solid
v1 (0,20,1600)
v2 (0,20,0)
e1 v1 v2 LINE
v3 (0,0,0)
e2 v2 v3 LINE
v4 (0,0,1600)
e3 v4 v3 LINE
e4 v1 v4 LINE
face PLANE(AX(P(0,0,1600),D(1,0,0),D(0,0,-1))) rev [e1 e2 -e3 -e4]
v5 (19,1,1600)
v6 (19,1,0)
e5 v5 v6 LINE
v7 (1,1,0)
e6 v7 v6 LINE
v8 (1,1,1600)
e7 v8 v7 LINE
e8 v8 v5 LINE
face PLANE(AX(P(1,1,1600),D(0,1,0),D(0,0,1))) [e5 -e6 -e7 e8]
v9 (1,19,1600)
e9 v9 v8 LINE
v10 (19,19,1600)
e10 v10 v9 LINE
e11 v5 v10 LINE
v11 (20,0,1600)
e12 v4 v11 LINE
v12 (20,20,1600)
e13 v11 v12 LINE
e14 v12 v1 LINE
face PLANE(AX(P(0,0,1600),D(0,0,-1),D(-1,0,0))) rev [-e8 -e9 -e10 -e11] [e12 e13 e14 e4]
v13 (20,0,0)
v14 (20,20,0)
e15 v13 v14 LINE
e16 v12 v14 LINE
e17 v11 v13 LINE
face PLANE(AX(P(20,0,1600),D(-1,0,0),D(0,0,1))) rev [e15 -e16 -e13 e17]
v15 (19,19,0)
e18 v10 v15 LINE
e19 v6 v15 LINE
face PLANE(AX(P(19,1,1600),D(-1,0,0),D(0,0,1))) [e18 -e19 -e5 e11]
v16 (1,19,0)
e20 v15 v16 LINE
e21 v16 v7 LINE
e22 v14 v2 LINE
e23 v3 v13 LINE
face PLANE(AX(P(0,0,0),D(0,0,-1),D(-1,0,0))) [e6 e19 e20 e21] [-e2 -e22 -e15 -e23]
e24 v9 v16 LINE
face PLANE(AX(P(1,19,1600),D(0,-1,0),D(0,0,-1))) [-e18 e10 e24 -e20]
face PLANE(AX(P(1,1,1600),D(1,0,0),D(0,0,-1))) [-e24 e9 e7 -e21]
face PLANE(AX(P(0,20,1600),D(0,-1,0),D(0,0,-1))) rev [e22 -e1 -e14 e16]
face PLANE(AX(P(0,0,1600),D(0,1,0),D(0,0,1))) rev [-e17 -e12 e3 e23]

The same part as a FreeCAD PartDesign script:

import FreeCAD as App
import Part
import Sketcher
from FreeCAD import Vector
Q = App.Units.Quantity


def add_polygon(sketch, points):
    """Adds a closed chain of lines whose ends are joined by coincident constraints."""
    first, n = sketch.GeometryCount, len(points)
    for a, b in zip(points, points[1:] + points[:1]):
        sketch.addGeometry(Part.LineSegment(App.Vector(*a, 0), App.Vector(*b, 0)), False)
    for i in range(n):
        sketch.addConstraint(Sketcher.Constraint("Coincident", first + i, 2, first + (i + 1) % n, 1))

doc = App.newDocument("Part")
body = doc.addObject("PartDesign::Body", "Body")

sketch1 = body.newObject("Sketcher::SketchObject", "Sketch")
sketch1.AttachmentSupport = (doc.getObject("XY_Plane"), [""])
sketch1.MapMode = "FlatFace"
add_polygon(sketch1, [(0, 20), (0, 0), (20, 0), (20, 20)])
add_polygon(sketch1, [(19, 1), (1, 1), (1, 19), (19, 19)])
sketch1.addConstraint(Sketcher.Constraint("Vertical", 0))
sketch1.addConstraint(Sketcher.Constraint("Horizontal", 1))
sketch1.addConstraint(Sketcher.Constraint("Vertical", 2))
sketch1.addConstraint(Sketcher.Constraint("Horizontal", 3))
sketch1.addConstraint(Sketcher.Constraint("Horizontal", 4))
sketch1.addConstraint(Sketcher.Constraint("Vertical", 5))
sketch1.addConstraint(Sketcher.Constraint("Horizontal", 6))
sketch1.addConstraint(Sketcher.Constraint("Vertical", 7))
sketch1.addConstraint(Sketcher.Constraint("Coincident", 0, 2, -1, 1))
sketch1.addConstraint(Sketcher.Constraint("Equal", 3, 0))
sketch1.addConstraint(Sketcher.Constraint("Equal", 6, 5))
sketch1.addConstraint(Sketcher.Constraint("DistanceX", 1, 1, 1, 2, Q("20 mm")))
sketch1.addConstraint(Sketcher.Constraint("DistanceX", 4, 2, 4, 1, Q("18 mm")))
sketch1.addConstraint(Sketcher.Constraint("DistanceX", -1, 1, 4, 2, Q("1 mm")))
sketch1.addConstraint(Sketcher.Constraint("DistanceY", -1, 1, 4, 2, Q("1 mm")))
pad1 = body.newObject("PartDesign::Pad", "Pad")
pad1.Profile = sketch1
pad1.Length = 1600

doc.recompute()
